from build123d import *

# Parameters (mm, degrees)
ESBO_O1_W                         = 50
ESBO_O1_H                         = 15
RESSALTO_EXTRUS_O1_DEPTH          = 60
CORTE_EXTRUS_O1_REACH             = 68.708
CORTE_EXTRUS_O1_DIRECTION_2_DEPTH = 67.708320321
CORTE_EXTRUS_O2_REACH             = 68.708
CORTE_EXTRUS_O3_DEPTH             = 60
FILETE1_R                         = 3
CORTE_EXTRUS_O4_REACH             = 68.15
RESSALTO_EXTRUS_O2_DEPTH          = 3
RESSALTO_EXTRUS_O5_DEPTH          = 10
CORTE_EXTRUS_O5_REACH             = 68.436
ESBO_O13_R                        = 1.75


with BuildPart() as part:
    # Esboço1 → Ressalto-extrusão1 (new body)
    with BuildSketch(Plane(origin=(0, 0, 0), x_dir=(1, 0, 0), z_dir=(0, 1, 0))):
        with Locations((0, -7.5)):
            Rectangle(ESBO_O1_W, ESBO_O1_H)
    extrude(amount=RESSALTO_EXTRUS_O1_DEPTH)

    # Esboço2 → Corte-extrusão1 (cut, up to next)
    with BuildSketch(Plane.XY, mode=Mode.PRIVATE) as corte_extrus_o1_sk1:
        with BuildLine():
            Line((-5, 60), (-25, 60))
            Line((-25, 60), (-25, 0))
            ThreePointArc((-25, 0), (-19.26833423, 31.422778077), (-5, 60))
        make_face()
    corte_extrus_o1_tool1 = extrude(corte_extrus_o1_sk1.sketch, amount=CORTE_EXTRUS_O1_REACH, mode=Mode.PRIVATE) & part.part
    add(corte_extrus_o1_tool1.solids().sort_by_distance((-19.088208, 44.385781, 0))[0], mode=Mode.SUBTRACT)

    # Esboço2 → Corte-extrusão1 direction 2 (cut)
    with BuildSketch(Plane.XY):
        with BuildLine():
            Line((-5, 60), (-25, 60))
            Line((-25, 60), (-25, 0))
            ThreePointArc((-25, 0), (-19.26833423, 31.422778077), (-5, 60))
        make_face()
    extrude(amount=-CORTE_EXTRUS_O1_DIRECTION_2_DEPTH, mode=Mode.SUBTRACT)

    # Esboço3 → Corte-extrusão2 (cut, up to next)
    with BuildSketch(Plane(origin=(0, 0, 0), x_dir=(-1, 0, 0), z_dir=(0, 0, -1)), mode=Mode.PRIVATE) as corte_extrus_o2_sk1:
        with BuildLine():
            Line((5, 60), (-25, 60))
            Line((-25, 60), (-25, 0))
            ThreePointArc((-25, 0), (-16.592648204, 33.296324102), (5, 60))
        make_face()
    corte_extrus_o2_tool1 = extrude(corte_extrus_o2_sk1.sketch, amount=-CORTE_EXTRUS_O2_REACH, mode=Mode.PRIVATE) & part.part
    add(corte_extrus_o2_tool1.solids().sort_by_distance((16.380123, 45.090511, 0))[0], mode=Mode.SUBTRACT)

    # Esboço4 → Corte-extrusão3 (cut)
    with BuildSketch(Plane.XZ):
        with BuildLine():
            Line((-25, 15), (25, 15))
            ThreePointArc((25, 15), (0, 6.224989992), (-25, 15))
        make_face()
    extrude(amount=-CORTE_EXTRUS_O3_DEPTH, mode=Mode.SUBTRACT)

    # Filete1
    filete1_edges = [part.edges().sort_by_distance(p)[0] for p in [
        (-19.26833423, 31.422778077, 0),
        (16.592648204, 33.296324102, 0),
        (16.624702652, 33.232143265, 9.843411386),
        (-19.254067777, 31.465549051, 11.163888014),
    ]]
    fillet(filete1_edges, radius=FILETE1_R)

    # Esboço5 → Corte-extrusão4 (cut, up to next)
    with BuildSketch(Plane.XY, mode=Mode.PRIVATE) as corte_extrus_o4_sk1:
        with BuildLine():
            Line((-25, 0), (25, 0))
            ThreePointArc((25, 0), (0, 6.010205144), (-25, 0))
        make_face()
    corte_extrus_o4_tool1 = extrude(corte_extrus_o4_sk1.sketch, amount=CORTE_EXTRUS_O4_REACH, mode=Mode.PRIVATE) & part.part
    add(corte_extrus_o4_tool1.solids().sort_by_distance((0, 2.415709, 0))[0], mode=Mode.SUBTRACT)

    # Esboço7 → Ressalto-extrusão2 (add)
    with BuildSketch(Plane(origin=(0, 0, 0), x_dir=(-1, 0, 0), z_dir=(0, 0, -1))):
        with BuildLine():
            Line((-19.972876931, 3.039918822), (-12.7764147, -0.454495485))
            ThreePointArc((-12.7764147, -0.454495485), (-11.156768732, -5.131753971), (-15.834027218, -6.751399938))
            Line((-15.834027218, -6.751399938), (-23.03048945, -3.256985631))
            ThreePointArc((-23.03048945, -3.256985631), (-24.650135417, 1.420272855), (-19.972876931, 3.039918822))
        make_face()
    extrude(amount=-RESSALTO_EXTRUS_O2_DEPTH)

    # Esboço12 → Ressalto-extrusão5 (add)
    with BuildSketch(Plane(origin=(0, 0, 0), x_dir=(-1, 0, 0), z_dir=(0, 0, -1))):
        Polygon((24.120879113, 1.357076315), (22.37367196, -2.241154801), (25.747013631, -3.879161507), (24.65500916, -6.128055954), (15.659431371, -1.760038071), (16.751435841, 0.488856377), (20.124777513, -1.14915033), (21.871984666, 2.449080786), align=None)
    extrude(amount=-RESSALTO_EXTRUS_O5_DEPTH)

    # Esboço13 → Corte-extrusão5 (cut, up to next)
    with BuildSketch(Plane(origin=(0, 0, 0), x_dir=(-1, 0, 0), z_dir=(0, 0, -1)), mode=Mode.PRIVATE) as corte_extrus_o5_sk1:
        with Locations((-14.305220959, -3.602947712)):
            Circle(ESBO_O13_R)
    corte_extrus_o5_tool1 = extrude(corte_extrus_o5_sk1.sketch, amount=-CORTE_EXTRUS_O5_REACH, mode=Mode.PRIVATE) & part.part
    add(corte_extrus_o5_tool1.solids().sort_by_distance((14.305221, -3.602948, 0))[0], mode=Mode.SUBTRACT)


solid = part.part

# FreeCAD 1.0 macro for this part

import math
import FreeCAD as App
import Part
import Sketcher
from FreeCAD import Vector
Q = App.Units.Quantity


def edges_at(feature, points):
    """Names of the edges that pass closest to the given points."""
    edges = feature.Shape.Edges
    near = lambda p: min(range(len(edges)), key=lambda i: edges[i].distToShape(Part.Vertex(*p))[0])
    return sorted({f"Edge{near(p) + 1}" for p in points})


def add_polygon(sketch, points):
    """Adds a closed chain of lines whose ends are joined by coincident constraints."""
    first, n = sketch.GeometryCount, len(points)
    for a, b in zip(points, points[1:] + points[:1]):
        sketch.addGeometry(Part.LineSegment(App.Vector(*a, 0), App.Vector(*b, 0)), False)
    for i in range(n):
        sketch.addConstraint(Sketcher.Constraint("Coincident", first + i, 2, first + (i + 1) % n, 1))

doc = App.newDocument("Part")
body = doc.addObject("PartDesign::Body", "Body")

sketch1 = body.newObject("Sketcher::SketchObject", "Sketch")
sketch1.AttachmentSupport = (doc.getObject("XZ_Plane"), [""])
sketch1.MapMode = "FlatFace"
add_polygon(sketch1, [(-25, 0), (-25, 15), (25, 15), (25, 0)])
sketch1.addConstraint(Sketcher.Constraint("Vertical", 0))
sketch1.addConstraint(Sketcher.Constraint("Horizontal", 1))
sketch1.addConstraint(Sketcher.Constraint("Vertical", 2))
sketch1.addConstraint(Sketcher.Constraint("Horizontal", 3))
sketch1.addConstraint(Sketcher.Constraint("Symmetric", 2, 2, 3, 2, -1, 1))
sketch1.addConstraint(Sketcher.Constraint("DistanceX", 1, 1, 1, 2, 50.0))
sketch1.addConstraint(Sketcher.Constraint("DistanceY", 0, 1, 0, 2, 15.0))
pad1 = body.newObject("PartDesign::Pad", "Pad")
pad1.Profile = sketch1
pad1.Length = 60
pad1.Reversed = True

sketch2 = body.newObject("Sketcher::SketchObject", "Sketch001")
sketch2.AttachmentSupport = (doc.getObject("XY_Plane"), [""])
sketch2.MapMode = "FlatFace"
sketch2.addGeometry(Part.LineSegment(Vector(-5, 60, 0), Vector(-25, 60, 0)), False)
sketch2.addGeometry(Part.LineSegment(Vector(-25, 60, 0), Vector(-25, 0, 0)), False)
sketch2.addGeometry(Part.ArcOfCircle(Part.Circle(Vector(88, -4, 0), Vector(0, 0, 1), 113), math.radians(145), math.radians(178)), False)
sketch2.addConstraint(Sketcher.Constraint("Coincident", 0, 2, 1, 1))
sketch2.addConstraint(Sketcher.Constraint("Coincident", 1, 2, 2, 2))
sketch2.addConstraint(Sketcher.Constraint("Coincident", 2, 1, 0, 1))
sketch2.addConstraint(Sketcher.Constraint("Horizontal", 0))
sketch2.addConstraint(Sketcher.Constraint("Vertical", 1))
sketch2.addConstraint(Sketcher.Constraint("PointOnObject", 1, 2, -1))
sketch2.addConstraint(Sketcher.Constraint("DistanceX", 0, 2, 0, 1, 20.0))
sketch2.addConstraint(Sketcher.Constraint("DistanceY", 1, 2, 1, 1, 60.0))
sketch2.addConstraint(Sketcher.Constraint("Radius", 2, 113.38))
sketch2.addConstraint(Sketcher.Constraint("DistanceX", 0, 2, -1, 1, 25.0))
pocket1 = body.newObject("PartDesign::Pocket", "Pocket")
pocket1.Profile = sketch2
pocket1.Type = "UpToFirst"
pocket1.Reversed = True

sketch3 = body.newObject("Sketcher::SketchObject", "Sketch002")
sketch3.AttachmentSupport = (doc.getObject("XY_Plane"), [""])
sketch3.MapMode = "FlatFace"
sketch3.addGeometry(Part.LineSegment(Vector(-5, 60, 0), Vector(-25, 60, 0)), False)
sketch3.addGeometry(Part.LineSegment(Vector(-25, 60, 0), Vector(-25, 0, 0)), False)
sketch3.addGeometry(Part.ArcOfCircle(Part.Circle(Vector(88, -4, 0), Vector(0, 0, 1), 113), math.radians(145), math.radians(178)), False)
sketch3.addConstraint(Sketcher.Constraint("Coincident", 0, 2, 1, 1))
sketch3.addConstraint(Sketcher.Constraint("Coincident", 1, 2, 2, 2))
sketch3.addConstraint(Sketcher.Constraint("Coincident", 2, 1, 0, 1))
sketch3.addConstraint(Sketcher.Constraint("Horizontal", 0))
sketch3.addConstraint(Sketcher.Constraint("Vertical", 1))
sketch3.addConstraint(Sketcher.Constraint("PointOnObject", 1, 2, -1))
sketch3.addConstraint(Sketcher.Constraint("DistanceX", 0, 2, 0, 1, 20.0))
sketch3.addConstraint(Sketcher.Constraint("DistanceY", 1, 2, 1, 1, 60.0))
sketch3.addConstraint(Sketcher.Constraint("Radius", 2, 113.38))
sketch3.addConstraint(Sketcher.Constraint("DistanceX", 0, 2, -1, 1, 25.0))
pocket2 = body.newObject("PartDesign::Pocket", "Pocket001")
pocket2.Profile = sketch3
pocket2.Length = 67.70832

sketch4 = body.newObject("Sketcher::SketchObject", "Sketch003")
sketch4.AttachmentSupport = (doc.getObject("XY_Plane"), [""])
sketch4.MapMode = "FlatFace"
sketch4.addGeometry(Part.LineSegment(Vector(-5, 60, 0), Vector(25, 60, 0)), False)
sketch4.addGeometry(Part.LineSegment(Vector(25, 60, 0), Vector(25, 0, 0)), False)
sketch4.addGeometry(Part.ArcOfCircle(Part.Circle(Vector(-55, -2, 0), Vector(0, 0, 1), 80), math.radians(2), math.radians(51)), False)
sketch4.addConstraint(Sketcher.Constraint("Coincident", 0, 2, 1, 1))
sketch4.addConstraint(Sketcher.Constraint("Coincident", 1, 2, 2, 1))
sketch4.addConstraint(Sketcher.Constraint("Coincident", 2, 2, 0, 1))
sketch4.addConstraint(Sketcher.Constraint("Horizontal", 0))
sketch4.addConstraint(Sketcher.Constraint("Vertical", 1))
sketch4.addConstraint(Sketcher.Constraint("PointOnObject", 1, 2, -1))
sketch4.addConstraint(Sketcher.Constraint("Radius", 2, 80.0))
sketch4.addConstraint(Sketcher.Constraint("DistanceX", 0, 1, 0, 2, 30.0))
sketch4.addConstraint(Sketcher.Constraint("DistanceY", 1, 2, 1, 1, 60.0))
sketch4.addConstraint(Sketcher.Constraint("DistanceX", -1, 1, 0, 2, 25.0))
pocket3 = body.newObject("PartDesign::Pocket", "Pocket002")
pocket3.Profile = sketch4
pocket3.Type = "UpToFirst"
pocket3.Reversed = True

sketch5 = body.newObject("Sketcher::SketchObject", "Sketch004")
sketch5.AttachmentSupport = (doc.getObject("XZ_Plane"), [""])
sketch5.MapMode = "FlatFace"
sketch5.addGeometry(Part.LineSegment(Vector(25, 15, 0), Vector(-25, 15, 0)), False)
sketch5.addGeometry(Part.ArcOfCircle(Part.Circle(Vector(0, 46, 0), Vector(0, 0, 1), 40), math.radians(-129), math.radians(-51)), False)
sketch5.addConstraint(Sketcher.Constraint("Coincident", 0, 1, 1, 2))
sketch5.addConstraint(Sketcher.Constraint("Coincident", 1, 1, 0, 2))
sketch5.addConstraint(Sketcher.Constraint("Horizontal", 0))
sketch5.addConstraint(Sketcher.Constraint("PointOnObject", 1, 3, -2))
sketch5.addConstraint(Sketcher.Constraint("Radius", 1, 40.0))
sketch5.addConstraint(Sketcher.Constraint("DistanceX", 0, 2, 0, 1, 50.0))
sketch5.addConstraint(Sketcher.Constraint("DistanceY", -1, 1, 0, 1, 15.0))
pocket4 = body.newObject("PartDesign::Pocket", "Pocket003")
pocket4.Profile = sketch5
pocket4.Length = 60
doc.recompute()

fillet = body.newObject("PartDesign::Fillet", "Fillet")
fillet.Base = (pocket4, edges_at(pocket4, [
    (-19.268, 31.423, 0),
    (16.593, 33.296, 0),
    (16.625, 33.232, 9.843),
    (-19.254, 31.466, 11.164),
]))
fillet.Radius = 3

sketch6 = body.newObject("Sketcher::SketchObject", "Sketch005")
sketch6.AttachmentSupport = (doc.getObject("XY_Plane"), [""])
sketch6.MapMode = "FlatFace"
sketch6.addGeometry(Part.LineSegment(Vector(-25, 0, 0), Vector(25, 0, 0)), False)
sketch6.addGeometry(Part.ArcOfCircle(Part.Circle(Vector(0, -49, 0), Vector(0, 0, 1), 55), math.radians(63), math.radians(117)), False)
sketch6.addConstraint(Sketcher.Constraint("Coincident", 0, 1, 1, 2))
sketch6.addConstraint(Sketcher.Constraint("Coincident", 1, 1, 0, 2))
sketch6.addConstraint(Sketcher.Constraint("Horizontal", 0))
sketch6.addConstraint(Sketcher.Constraint("Symmetric", 0, 1, 1, 1, -1, 1))
sketch6.addConstraint(Sketcher.Constraint("Radius", 1, 55.0))
sketch6.addConstraint(Sketcher.Constraint("DistanceX", 0, 1, 0, 2, 50.0))
pocket5 = body.newObject("PartDesign::Pocket", "Pocket004")
pocket5.Profile = sketch6
pocket5.Type = "UpToFirst"
pocket5.Reversed = True

sketch7 = body.newObject("Sketcher::SketchObject", "Sketch006")
sketch7.AttachmentSupport = (doc.getObject("XY_Plane"), [""])
sketch7.MapMode = "FlatFace"
sketch7.addGeometry(Part.LineSegment(Vector(12.8, -0.5, 0), Vector(20, 3, 0)), False)
sketch7.addGeometry(Part.ArcOfCircle(Part.Circle(Vector(21.5, -0.1, 0), Vector(0, 0, 1), 3.5), math.radians(-64), math.radians(116)), False)
sketch7.addGeometry(Part.LineSegment(Vector(23, -3.3, 0), Vector(15.8, -6.8, 0)), False)
sketch7.addGeometry(Part.ArcOfCircle(Part.Circle(Vector(14.3, -3.6, 0), Vector(0, 0, 1), 3.5), math.radians(116), math.radians(296)), False)
sketch7.addConstraint(Sketcher.Constraint("Tangent", 0, 2, 1, 2))
sketch7.addConstraint(Sketcher.Constraint("Tangent", 1, 1, 2, 1))
sketch7.addConstraint(Sketcher.Constraint("Tangent", 2, 2, 3, 2))
sketch7.addConstraint(Sketcher.Constraint("Tangent", 3, 1, 0, 1))
sketch7.addConstraint(Sketcher.Constraint("Equal", 1, 3))
sketch7.addConstraint(Sketcher.Constraint("Radius", 1, 3.5))
sketch7.addConstraint(Sketcher.Constraint("Distance", 0, 8.0))
sketch7.addConstraint(Sketcher.Constraint("Angle", 0, Q("25.9 deg")))
sketch7.addConstraint(Sketcher.Constraint("DistanceY", 2, 2, -1, 1, 6.7514))
sketch7.addConstraint(Sketcher.Constraint("DistanceX", -1, 1, 3, 3, 14.305221))
pad2 = body.newObject("PartDesign::Pad", "Pad001")
pad2.Profile = sketch7
pad2.Length = 3

sketch8 = body.newObject("Sketcher::SketchObject", "Sketch007")
sketch8.AttachmentSupport = (doc.getObject("XY_Plane"), [""])
sketch8.MapMode = "FlatFace"
add_polygon(sketch8, [(-22.4, -2.2), (-24.1, 1.4), (-21.9, 2.4), (-20.1, -1.1), (-16.8, 0.5), (-15.7, -1.8), (-24.7, -6.1), (-25.7, -3.9)])
sketch8.addConstraint(Sketcher.Constraint("Perpendicular", 0, 1))
sketch8.addConstraint(Sketcher.Constraint("Perpendicular", 1, 2))
sketch8.addConstraint(Sketcher.Constraint("Perpendicular", 2, 3))
sketch8.addConstraint(Sketcher.Constraint("Perpendicular", 3, 4))
sketch8.addConstraint(Sketcher.Constraint("Perpendicular", 4, 5))
sketch8.addConstraint(Sketcher.Constraint("Perpendicular", 5, 6))
sketch8.addConstraint(Sketcher.Constraint("Perpendicular", 6, 7))
sketch8.addConstraint(Sketcher.Constraint("Equal", 0, 2))
sketch8.addConstraint(Sketcher.Constraint("Equal", 1, 4))
sketch8.addConstraint(Sketcher.Constraint("Equal", 3, 7))
sketch8.addConstraint(Sketcher.Constraint("Distance", 0, 4.0))
sketch8.addConstraint(Sketcher.Constraint("Distance", 5, 10.0))
sketch8.addConstraint(Sketcher.Constraint("Angle", 0, Q("115.9 deg")))
sketch8.addConstraint(Sketcher.Constraint("Distance", 1, 2.5))
sketch8.addConstraint(Sketcher.Constraint("DistanceX", 0, 2, -1, 1, 24.120879))
sketch8.addConstraint(Sketcher.Constraint("DistanceY", -1, 1, 1, 2, 2.449081))
pad3 = body.newObject("PartDesign::Pad", "Pad002")
pad3.Profile = sketch8
pad3.Length = 10

sketch9 = body.newObject("Sketcher::SketchObject", "Sketch008")
sketch9.AttachmentSupport = (doc.getObject("XY_Plane"), [""])
sketch9.MapMode = "FlatFace"
sketch9.addGeometry(Part.Circle(Vector(14.3, -3.6, 0), Vector(0, 0, 1), 1.8), False)
sketch9.addConstraint(Sketcher.Constraint("Diameter", 0, 3.5))
sketch9.addConstraint(Sketcher.Constraint("DistanceX", -1, 1, 0, 3, 14.305221))
sketch9.addConstraint(Sketcher.Constraint("DistanceY", 0, 3, -1, 1, 3.602948))
pocket6 = body.newObject("PartDesign::Pocket", "Pocket005")
pocket6.Profile = sketch9
pocket6.Type = "UpToFirst"
pocket6.Reversed = True

doc.recompute()
